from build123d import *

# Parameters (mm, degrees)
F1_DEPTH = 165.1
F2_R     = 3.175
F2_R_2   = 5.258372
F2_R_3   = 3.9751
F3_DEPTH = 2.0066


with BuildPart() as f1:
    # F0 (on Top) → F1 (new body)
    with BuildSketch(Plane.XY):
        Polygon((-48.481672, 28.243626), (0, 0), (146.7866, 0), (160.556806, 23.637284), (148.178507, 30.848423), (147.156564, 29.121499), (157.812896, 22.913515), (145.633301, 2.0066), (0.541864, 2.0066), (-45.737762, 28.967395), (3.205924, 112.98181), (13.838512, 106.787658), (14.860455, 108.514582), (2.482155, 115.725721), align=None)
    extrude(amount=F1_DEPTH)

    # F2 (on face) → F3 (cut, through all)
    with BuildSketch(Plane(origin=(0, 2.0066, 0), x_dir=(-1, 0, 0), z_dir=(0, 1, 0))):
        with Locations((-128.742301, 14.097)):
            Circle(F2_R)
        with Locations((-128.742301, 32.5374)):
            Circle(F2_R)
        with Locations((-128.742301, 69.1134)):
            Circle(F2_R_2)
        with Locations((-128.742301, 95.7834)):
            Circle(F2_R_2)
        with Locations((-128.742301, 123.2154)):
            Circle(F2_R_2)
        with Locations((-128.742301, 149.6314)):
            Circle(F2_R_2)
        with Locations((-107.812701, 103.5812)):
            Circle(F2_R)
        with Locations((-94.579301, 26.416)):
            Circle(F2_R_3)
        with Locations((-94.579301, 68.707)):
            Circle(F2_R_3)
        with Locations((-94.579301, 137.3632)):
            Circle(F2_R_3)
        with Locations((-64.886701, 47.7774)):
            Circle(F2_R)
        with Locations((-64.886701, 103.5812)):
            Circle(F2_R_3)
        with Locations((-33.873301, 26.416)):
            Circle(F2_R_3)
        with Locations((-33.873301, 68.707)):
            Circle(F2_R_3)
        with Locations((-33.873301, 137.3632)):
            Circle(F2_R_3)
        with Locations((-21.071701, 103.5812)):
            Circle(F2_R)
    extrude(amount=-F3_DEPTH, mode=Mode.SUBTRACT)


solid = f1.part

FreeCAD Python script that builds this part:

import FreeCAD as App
import Part
import Sketcher
from FreeCAD import Vector
Q = App.Units.Quantity


def add_polygon(sketch, points):
    """Adds a closed chain of lines whose ends are joined by coincident constraints."""
    first, n = sketch.GeometryCount, len(points)
    for a, b in zip(points, points[1:] + points[:1]):
        sketch.addGeometry(Part.LineSegment(App.Vector(*a, 0), App.Vector(*b, 0)), False)
    for i in range(n):
        sketch.addConstraint(Sketcher.Constraint("Coincident", first + i, 2, first + (i + 1) % n, 1))

doc = App.newDocument("Part")
body = doc.addObject("PartDesign::Body", "Body")

sketch1 = doc.addObject("Sketcher::SketchObject", "Sketch")
body.addObject(sketch1)
sketch1.AttachmentSupport = (doc.XY_Plane, [""])
sketch1.MapMode = "FlatFace"
add_polygon(sketch1, [(-48.481672, 28.243626), (0, 0), (146.7866, 0), (160.556806, 23.637284), (148.178507, 30.848423), (147.156564, 29.121499), (157.812896, 22.913515), (145.633301, 2.0066), (0.541864, 2.0066), (-45.737762, 28.967395), (3.205924, 112.98181), (13.838512, 106.787658), (14.860455, 108.514582), (2.482155, 115.725721)])
sketch1.addConstraint([
    Sketcher.Constraint("Horizontal", 1),
    Sketcher.Constraint("Horizontal", 7),
    Sketcher.Constraint("Coincident", 0, 2, -1, 1),
    Sketcher.Constraint("Perpendicular", 0, 2),
    Sketcher.Constraint("Perpendicular", 2, 3),
    Sketcher.Constraint("Parallel", 3, 5),
    Sketcher.Constraint("Perpendicular", 5, 6),
    Sketcher.Constraint("Perpendicular", 6, 8),
    Sketcher.Constraint("Perpendicular", 8, 9),
    Sketcher.Constraint("Perpendicular", 9, 10),
    Sketcher.Constraint("Parallel", 4, 11),
    Sketcher.Constraint("Parallel", 10, 12),
    Sketcher.Constraint("Perpendicular", 12, 13),
    Sketcher.Constraint("Equal", 4, 11),
    Sketcher.Constraint("Equal", 3, 12),
    Sketcher.Constraint("DistanceX", 1, 1, 1, 2, Q("5.779 in")),
    Sketcher.Constraint("Distance", 0, Q("2.209 in")),
    Sketcher.Constraint("Distance", 2, Q("1.077 in")),
    Sketcher.Constraint("Distance", 3, Q("0.564 in")),
    Sketcher.Constraint("Distance", 9, Q("3.828 in")),
    Sketcher.Constraint("Distance", 13, Q("3.986 in")),
    Sketcher.Constraint("DistanceY", -1, 1, 6, 2, Q("0.079 in")),
    Sketcher.Constraint("Distance", 6, Q("24.195901 mm")),
    Sketcher.Constraint("DistanceY", -1, 1, 4, 2, Q("29.121499 mm")),
    Sketcher.Constraint("DistanceX", -1, 1, 6, 2, Q("145.633301 mm")),
    Sketcher.Constraint("DistanceX", 3, 2, 2, 2, Q("12.378299 mm")),
    Sketcher.Constraint("Distance", 10, Q("12.305261 mm")),
])
pad1 = doc.addObject("PartDesign::Pad", "Pad")
body.addObject(pad1)
pad1.Profile = sketch1
pad1.Length = Q("6.5 in")

sketch2 = doc.addObject("Sketcher::SketchObject", "Sketch001")
body.addObject(sketch2)
sketch2.AttachmentSupport = (doc.XZ_Plane, [""])
sketch2.MapMode = "FlatFace"
sketch2.AttachmentOffset = App.Placement(Vector(0, 0, -0.079 * 25.4), App.Rotation())
sketch2.addGeometry([
    Part.Circle(Vector(128.742301, 14.097, 0), Vector(0, 0, 1), 3.175),
    Part.Circle(Vector(128.742301, 32.5374, 0), Vector(0, 0, 1), 3.175),
    Part.Circle(Vector(128.742301, 69.1134, 0), Vector(0, 0, 1), 5.258372),
    Part.Circle(Vector(128.742301, 95.7834, 0), Vector(0, 0, 1), 5.258372),
    Part.Circle(Vector(128.742301, 123.2154, 0), Vector(0, 0, 1), 5.258372),
    Part.Circle(Vector(128.742301, 149.6314, 0), Vector(0, 0, 1), 5.258372),
    Part.Circle(Vector(107.812701, 103.5812, 0), Vector(0, 0, 1), 3.175),
    Part.Circle(Vector(94.579301, 26.416, 0), Vector(0, 0, 1), 3.9751),
    Part.Circle(Vector(94.579301, 68.707, 0), Vector(0, 0, 1), 3.9751),
    Part.Circle(Vector(94.579301, 137.3632, 0), Vector(0, 0, 1), 3.9751),
    Part.Circle(Vector(64.886701, 47.7774, 0), Vector(0, 0, 1), 3.175),
    Part.Circle(Vector(64.886701, 103.5812, 0), Vector(0, 0, 1), 3.9751),
    Part.Circle(Vector(33.873301, 26.416, 0), Vector(0, 0, 1), 3.9751),
    Part.Circle(Vector(33.873301, 68.707, 0), Vector(0, 0, 1), 3.9751),
    Part.Circle(Vector(33.873301, 137.3632, 0), Vector(0, 0, 1), 3.9751),
    Part.Circle(Vector(21.071701, 103.5812, 0), Vector(0, 0, 1), 3.175),
], False)
sketch2.addConstraint([
    Sketcher.Constraint("Equal", 0, 1),
    Sketcher.Constraint("Equal", 2, 3),
    Sketcher.Constraint("Equal", 3, 4),
    Sketcher.Constraint("Equal", 4, 5),
    Sketcher.Constraint("Equal", 1, 6),
    Sketcher.Constraint("Equal", 7, 8),
    Sketcher.Constraint("Equal", 8, 9),
    Sketcher.Constraint("Equal", 6, 10),
    Sketcher.Constraint("Equal", 9, 11),
    Sketcher.Constraint("Equal", 11, 12),
    Sketcher.Constraint("Equal", 12, 13),
    Sketcher.Constraint("Equal", 13, 14),
    Sketcher.Constraint("Equal", 10, 15),
    Sketcher.Constraint("Horizontal", 6, 3, 11, 3),
    Sketcher.Constraint("Horizontal", 7, 3, 12, 3),
    Sketcher.Constraint("Horizontal", 8, 3, 13, 3),
    Sketcher.Constraint("Horizontal", 9, 3, 14, 3),
    Sketcher.Constraint("Horizontal", 11, 3, 15, 3),
    Sketcher.Constraint("Vertical", 0, 3, 1, 3),
    Sketcher.Constraint("Vertical", 1, 3, 2, 3),
    Sketcher.Constraint("Vertical", 2, 3, 3, 3),
    Sketcher.Constraint("Vertical", 3, 3, 4, 3),
    Sketcher.Constraint("Vertical", 4, 3, 5, 3),
    Sketcher.Constraint("Vertical", 7, 3, 8, 3),
    Sketcher.Constraint("Vertical", 8, 3, 9, 3),
    Sketcher.Constraint("Vertical", 10, 3, 11, 3),
    Sketcher.Constraint("Vertical", 12, 3, 13, 3),
    Sketcher.Constraint("Vertical", 13, 3, 14, 3),
    Sketcher.Constraint("Diameter", 0, Q("0.25 in")),
    Sketcher.Constraint("Diameter", 7, Q("0.313 in")),
    Sketcher.Constraint("DistanceY", 1, 3, 10, 3, Q("0.6 in")),
    Sketcher.Constraint("DistanceY", -1, 1, 7, 3, Q("1.04 in")),
    Sketcher.Constraint("DistanceY", 1, 3, 2, 3, Q("1.44 in")),
    Sketcher.Constraint("DistanceY", 2, 3, 3, 3, Q("1.05 in")),
    Sketcher.Constraint("DistanceY", 3, 3, 4, 3, Q("1.08 in")),
    Sketcher.Constraint("DistanceY", 4, 3, 5, 3, Q("1.04 in")),
    Sketcher.Constraint("DistanceY", 6, 3, 9, 3, Q("1.33 in")),
    Sketcher.Constraint("DistanceX", 10, 3, 6, 3, Q("1.69 in")),
    Sketcher.Constraint("DistanceX", 12, 3, 7, 3, Q("2.39 in")),
    Sketcher.Constraint("DistanceY", -1, 1, 0, 3, Q("0.555 in")),
    Sketcher.Constraint("DistanceY", -1, 1, 1, 3, Q("1.281 in")),
    Sketcher.Constraint("DistanceY", -1, 1, 6, 3, Q("4.078 in")),
    Sketcher.Constraint("DistanceY", -1, 1, 8, 3, Q("2.705 in")),
    Sketcher.Constraint("DistanceX", 6, 3, 3, 3, Q("0.824 in")),
    Sketcher.Constraint("DistanceX", 7, 3, 1, 3, Q("1.345 in")),
    Sketcher.Constraint("DistanceX", 15, 3, 14, 3, Q("0.504 in")),
    Sketcher.Constraint("Diameter", 2, Q("10.516744 mm")),
    Sketcher.Constraint("DistanceX", -1, 1, 0, 3, Q("128.742301 mm")),
])
pocket1 = doc.addObject("PartDesign::Pocket", "Pocket")
body.addObject(pocket1)
pocket1.Profile = sketch2
pocket1.Type = "ThroughAll"
pocket1.Reversed = True

doc.recompute()
